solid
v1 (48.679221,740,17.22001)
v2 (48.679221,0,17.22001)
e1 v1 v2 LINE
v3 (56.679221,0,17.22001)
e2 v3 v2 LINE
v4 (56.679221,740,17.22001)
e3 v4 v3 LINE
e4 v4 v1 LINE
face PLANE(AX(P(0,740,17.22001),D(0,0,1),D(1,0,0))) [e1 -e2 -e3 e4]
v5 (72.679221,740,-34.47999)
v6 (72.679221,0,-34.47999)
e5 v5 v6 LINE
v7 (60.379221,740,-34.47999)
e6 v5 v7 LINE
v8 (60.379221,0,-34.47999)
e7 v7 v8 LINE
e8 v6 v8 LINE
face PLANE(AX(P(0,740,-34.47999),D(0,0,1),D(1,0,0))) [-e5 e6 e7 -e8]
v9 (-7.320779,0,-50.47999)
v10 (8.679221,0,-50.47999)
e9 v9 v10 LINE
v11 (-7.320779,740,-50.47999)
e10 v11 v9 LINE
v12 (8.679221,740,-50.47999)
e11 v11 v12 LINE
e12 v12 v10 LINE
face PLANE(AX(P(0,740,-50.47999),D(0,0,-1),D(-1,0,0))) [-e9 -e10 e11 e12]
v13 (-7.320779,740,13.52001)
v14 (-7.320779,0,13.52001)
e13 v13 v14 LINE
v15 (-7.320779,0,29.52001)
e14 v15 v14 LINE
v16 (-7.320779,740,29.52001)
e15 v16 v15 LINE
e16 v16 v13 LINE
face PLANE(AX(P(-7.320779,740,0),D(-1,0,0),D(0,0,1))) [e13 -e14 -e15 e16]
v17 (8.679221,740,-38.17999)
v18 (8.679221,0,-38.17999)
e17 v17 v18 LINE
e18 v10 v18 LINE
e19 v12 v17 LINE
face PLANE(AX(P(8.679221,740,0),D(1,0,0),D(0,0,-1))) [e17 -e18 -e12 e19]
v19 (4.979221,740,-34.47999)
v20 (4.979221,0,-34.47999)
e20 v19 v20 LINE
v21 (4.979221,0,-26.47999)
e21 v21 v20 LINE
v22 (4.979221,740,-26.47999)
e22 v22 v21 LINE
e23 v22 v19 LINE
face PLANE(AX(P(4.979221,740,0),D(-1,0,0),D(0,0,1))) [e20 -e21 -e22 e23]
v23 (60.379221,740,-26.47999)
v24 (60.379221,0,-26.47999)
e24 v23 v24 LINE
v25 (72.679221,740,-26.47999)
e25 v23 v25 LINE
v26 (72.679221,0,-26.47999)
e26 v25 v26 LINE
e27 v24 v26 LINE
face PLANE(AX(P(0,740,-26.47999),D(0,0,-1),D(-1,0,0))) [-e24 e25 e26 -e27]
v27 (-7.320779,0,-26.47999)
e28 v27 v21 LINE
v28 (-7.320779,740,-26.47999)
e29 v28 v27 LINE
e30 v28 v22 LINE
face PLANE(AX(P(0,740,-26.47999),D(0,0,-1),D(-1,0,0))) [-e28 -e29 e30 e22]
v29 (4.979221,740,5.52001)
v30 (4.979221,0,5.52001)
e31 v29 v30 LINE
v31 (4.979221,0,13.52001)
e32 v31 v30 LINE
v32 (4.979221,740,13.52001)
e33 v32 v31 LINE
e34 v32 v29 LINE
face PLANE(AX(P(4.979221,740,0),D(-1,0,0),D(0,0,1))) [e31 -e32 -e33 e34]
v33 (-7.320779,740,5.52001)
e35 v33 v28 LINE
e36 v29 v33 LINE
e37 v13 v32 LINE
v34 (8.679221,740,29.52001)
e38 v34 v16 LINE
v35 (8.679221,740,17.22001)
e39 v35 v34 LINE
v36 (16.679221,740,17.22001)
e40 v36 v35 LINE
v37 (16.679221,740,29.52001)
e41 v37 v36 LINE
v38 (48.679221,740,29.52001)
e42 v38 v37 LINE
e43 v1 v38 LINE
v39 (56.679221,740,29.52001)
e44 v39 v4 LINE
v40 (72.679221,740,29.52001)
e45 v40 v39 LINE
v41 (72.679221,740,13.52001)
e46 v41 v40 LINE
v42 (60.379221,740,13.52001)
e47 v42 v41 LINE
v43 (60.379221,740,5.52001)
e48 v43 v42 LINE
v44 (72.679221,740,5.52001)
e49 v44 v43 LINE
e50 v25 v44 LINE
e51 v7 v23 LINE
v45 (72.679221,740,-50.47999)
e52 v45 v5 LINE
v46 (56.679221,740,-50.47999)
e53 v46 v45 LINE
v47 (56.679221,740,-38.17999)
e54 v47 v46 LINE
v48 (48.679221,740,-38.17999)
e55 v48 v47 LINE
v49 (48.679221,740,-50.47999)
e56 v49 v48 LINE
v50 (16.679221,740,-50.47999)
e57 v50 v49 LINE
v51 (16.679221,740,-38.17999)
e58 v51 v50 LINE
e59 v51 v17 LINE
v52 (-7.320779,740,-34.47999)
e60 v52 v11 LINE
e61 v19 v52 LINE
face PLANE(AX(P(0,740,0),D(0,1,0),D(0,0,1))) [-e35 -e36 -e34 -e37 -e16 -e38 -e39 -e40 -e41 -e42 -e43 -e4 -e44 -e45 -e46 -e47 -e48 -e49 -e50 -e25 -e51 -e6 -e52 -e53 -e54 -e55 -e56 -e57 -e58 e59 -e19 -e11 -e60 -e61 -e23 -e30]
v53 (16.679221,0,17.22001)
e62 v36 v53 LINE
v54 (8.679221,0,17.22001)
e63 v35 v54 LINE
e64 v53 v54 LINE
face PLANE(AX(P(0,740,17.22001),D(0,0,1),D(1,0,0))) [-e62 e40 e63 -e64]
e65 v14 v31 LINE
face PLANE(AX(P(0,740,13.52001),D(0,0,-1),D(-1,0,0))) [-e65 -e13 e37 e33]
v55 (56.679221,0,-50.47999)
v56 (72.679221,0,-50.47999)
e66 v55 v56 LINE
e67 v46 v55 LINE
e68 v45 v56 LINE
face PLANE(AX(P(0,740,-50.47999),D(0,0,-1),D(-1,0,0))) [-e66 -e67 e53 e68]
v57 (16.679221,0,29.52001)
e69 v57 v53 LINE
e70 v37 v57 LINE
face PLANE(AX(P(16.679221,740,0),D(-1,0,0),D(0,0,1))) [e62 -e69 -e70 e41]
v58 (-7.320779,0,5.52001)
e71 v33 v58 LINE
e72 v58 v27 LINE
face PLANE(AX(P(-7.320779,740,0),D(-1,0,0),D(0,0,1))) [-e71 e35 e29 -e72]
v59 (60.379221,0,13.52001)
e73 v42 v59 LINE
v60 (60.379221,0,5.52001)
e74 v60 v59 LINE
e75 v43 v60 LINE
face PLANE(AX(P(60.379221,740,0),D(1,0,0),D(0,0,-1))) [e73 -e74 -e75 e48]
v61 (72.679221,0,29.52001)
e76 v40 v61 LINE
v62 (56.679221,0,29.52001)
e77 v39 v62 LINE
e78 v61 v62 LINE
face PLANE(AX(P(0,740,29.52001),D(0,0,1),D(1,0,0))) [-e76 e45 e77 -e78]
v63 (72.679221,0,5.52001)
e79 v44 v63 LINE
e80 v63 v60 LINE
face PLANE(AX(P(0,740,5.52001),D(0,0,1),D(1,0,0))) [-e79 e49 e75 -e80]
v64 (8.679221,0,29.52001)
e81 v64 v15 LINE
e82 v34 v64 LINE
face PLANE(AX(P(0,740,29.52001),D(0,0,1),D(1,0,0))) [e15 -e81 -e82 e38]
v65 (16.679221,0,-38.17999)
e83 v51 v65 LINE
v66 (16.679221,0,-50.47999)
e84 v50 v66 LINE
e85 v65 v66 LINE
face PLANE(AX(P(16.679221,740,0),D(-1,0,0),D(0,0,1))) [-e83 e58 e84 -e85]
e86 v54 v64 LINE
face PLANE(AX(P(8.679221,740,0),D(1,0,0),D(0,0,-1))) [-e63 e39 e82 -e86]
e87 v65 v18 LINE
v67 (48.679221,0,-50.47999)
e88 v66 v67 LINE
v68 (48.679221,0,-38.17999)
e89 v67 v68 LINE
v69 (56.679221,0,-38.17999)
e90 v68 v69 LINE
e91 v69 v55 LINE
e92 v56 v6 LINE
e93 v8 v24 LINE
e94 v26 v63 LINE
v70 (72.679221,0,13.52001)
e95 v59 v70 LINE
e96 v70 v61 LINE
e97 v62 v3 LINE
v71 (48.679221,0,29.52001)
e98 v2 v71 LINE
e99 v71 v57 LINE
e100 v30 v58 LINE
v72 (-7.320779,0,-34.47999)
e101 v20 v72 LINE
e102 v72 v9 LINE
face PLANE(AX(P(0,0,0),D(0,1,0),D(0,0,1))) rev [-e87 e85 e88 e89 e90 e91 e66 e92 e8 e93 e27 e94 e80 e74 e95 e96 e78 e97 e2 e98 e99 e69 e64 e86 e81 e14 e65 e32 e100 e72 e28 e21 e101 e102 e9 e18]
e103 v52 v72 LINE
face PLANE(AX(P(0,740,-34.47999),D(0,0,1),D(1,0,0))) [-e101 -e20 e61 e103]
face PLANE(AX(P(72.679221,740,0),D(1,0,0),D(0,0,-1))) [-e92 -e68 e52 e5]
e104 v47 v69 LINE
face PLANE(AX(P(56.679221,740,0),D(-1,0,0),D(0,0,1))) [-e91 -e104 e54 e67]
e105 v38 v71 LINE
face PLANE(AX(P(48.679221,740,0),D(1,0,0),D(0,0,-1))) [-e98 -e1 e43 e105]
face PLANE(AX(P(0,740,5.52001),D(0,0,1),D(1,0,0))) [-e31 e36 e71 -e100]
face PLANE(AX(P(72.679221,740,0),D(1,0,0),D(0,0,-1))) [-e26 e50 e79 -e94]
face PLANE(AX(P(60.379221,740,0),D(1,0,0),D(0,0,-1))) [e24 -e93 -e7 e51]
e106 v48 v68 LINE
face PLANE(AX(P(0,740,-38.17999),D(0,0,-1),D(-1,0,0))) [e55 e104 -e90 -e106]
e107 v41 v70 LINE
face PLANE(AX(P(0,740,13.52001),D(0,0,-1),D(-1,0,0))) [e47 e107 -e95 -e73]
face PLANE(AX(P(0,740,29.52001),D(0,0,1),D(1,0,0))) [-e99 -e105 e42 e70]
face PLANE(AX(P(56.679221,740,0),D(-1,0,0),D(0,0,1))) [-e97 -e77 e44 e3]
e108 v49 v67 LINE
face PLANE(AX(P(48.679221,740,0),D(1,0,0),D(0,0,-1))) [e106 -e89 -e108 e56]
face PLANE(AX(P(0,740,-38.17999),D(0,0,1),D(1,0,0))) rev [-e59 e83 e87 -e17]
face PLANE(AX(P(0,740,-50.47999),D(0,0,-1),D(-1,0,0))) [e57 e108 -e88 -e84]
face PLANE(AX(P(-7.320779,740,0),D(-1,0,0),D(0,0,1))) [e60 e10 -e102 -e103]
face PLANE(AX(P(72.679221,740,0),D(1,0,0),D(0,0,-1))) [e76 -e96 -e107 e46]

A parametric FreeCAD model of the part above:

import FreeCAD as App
import Part
import Sketcher


def add_polygon(sketch, points):
    """Adds a closed chain of lines whose ends are joined by coincident constraints."""
    first, n = sketch.GeometryCount, len(points)
    for a, b in zip(points, points[1:] + points[:1]):
        sketch.addGeometry(Part.LineSegment(App.Vector(*a, 0), App.Vector(*b, 0)), False)
    for i in range(n):
        sketch.addConstraint(Sketcher.Constraint("Coincident", first + i, 2, first + (i + 1) % n, 1))

doc = App.newDocument("Part")
body = doc.addObject("PartDesign::Body", "Body")

sketch1 = doc.addObject("Sketcher::SketchObject", "Sketch")
body.addObject(sketch1)
sketch1.AttachmentSupport = (doc.XZ_Plane, [""])
sketch1.MapMode = "FlatFace"
add_polygon(sketch1, [(-7, -50), (-7, -34), (5, -34), (5, -26), (-7, -26), (-7, 6), (5, 6), (5, 14), (-7, 14), (-7, 30), (9, 30), (9, 17), (17, 17), (17, 30), (49, 30), (49, 17), (57, 17), (57, 30), (73, 30), (73, 14), (60, 14), (60, 6), (73, 6), (73, -26), (60, -26), (60, -34), (73, -34), (73, -50), (57, -50), (57, -38), (49, -38), (49, -50), (17, -50), (17, -38), (9, -38), (9, -50)])
sketch1.addConstraint(Sketcher.Constraint("Vertical", 0))
sketch1.addConstraint(Sketcher.Constraint("Horizontal", 1))
sketch1.addConstraint(Sketcher.Constraint("Vertical", 2))
sketch1.addConstraint(Sketcher.Constraint("Horizontal", 3))
sketch1.addConstraint(Sketcher.Constraint("Vertical", 4))
sketch1.addConstraint(Sketcher.Constraint("Horizontal", 5))
sketch1.addConstraint(Sketcher.Constraint("Vertical", 6))
sketch1.addConstraint(Sketcher.Constraint("Horizontal", 7))
sketch1.addConstraint(Sketcher.Constraint("Vertical", 8))
sketch1.addConstraint(Sketcher.Constraint("Horizontal", 9))
sketch1.addConstraint(Sketcher.Constraint("Vertical", 10))
sketch1.addConstraint(Sketcher.Constraint("Horizontal", 11))
sketch1.addConstraint(Sketcher.Constraint("Vertical", 12))
sketch1.addConstraint(Sketcher.Constraint("Horizontal", 13))
sketch1.addConstraint(Sketcher.Constraint("Vertical", 14))
sketch1.addConstraint(Sketcher.Constraint("Horizontal", 15))
sketch1.addConstraint(Sketcher.Constraint("Vertical", 16))
sketch1.addConstraint(Sketcher.Constraint("Horizontal", 17))
sketch1.addConstraint(Sketcher.Constraint("Vertical", 18))
sketch1.addConstraint(Sketcher.Constraint("Horizontal", 19))
sketch1.addConstraint(Sketcher.Constraint("Vertical", 20))
sketch1.addConstraint(Sketcher.Constraint("Horizontal", 21))
sketch1.addConstraint(Sketcher.Constraint("Vertical", 22))
sketch1.addConstraint(Sketcher.Constraint("Horizontal", 23))
sketch1.addConstraint(Sketcher.Constraint("Vertical", 24))
sketch1.addConstraint(Sketcher.Constraint("Horizontal", 25))
sketch1.addConstraint(Sketcher.Constraint("Vertical", 26))
sketch1.addConstraint(Sketcher.Constraint("Horizontal", 27))
sketch1.addConstraint(Sketcher.Constraint("Vertical", 28))
sketch1.addConstraint(Sketcher.Constraint("Horizontal", 29))
sketch1.addConstraint(Sketcher.Constraint("Vertical", 30))
sketch1.addConstraint(Sketcher.Constraint("Horizontal", 31))
sketch1.addConstraint(Sketcher.Constraint("Vertical", 32))
sketch1.addConstraint(Sketcher.Constraint("Horizontal", 33))
sketch1.addConstraint(Sketcher.Constraint("Vertical", 34))
sketch1.addConstraint(Sketcher.Constraint("Horizontal", 35))
sketch1.addConstraint(Sketcher.Constraint("Horizontal", 9, 2, 12, 2))
sketch1.addConstraint(Sketcher.Constraint("Horizontal", 11, 2, 14, 2))
sketch1.addConstraint(Sketcher.Constraint("Horizontal", 13, 2, 16, 2))
sketch1.addConstraint(Sketcher.Constraint("Horizontal", 7, 2, 18, 2))
sketch1.addConstraint(Sketcher.Constraint("Horizontal", 5, 2, 20, 2))
sketch1.addConstraint(Sketcher.Constraint("Horizontal", 3, 2, 22, 2))
sketch1.addConstraint(Sketcher.Constraint("Horizontal", 1, 2, 24, 2))
sketch1.addConstraint(Sketcher.Constraint("Horizontal", 27, 2, 30, 2))
sketch1.addConstraint(Sketcher.Constraint("Horizontal", 29, 2, 32, 2))
sketch1.addConstraint(Sketcher.Constraint("Horizontal", 31, 2, 34, 2))
sketch1.addConstraint(Sketcher.Constraint("Vertical", 0, 2, 3, 2))
sketch1.addConstraint(Sketcher.Constraint("Vertical", 2, 2, 5, 2))
sketch1.addConstraint(Sketcher.Constraint("Vertical", 4, 2, 7, 2))
sketch1.addConstraint(Sketcher.Constraint("Vertical", 18, 2, 21, 2))
sketch1.addConstraint(Sketcher.Constraint("Vertical", 20, 2, 23, 2))
sketch1.addConstraint(Sketcher.Constraint("Vertical", 22, 2, 25, 2))
sketch1.addConstraint(Sketcher.Constraint("Vertical", 16, 2, 27, 2))
sketch1.addConstraint(Sketcher.Constraint("Vertical", 14, 2, 29, 2))
sketch1.addConstraint(Sketcher.Constraint("Vertical", 12, 2, 31, 2))
sketch1.addConstraint(Sketcher.Constraint("Vertical", 10, 2, 33, 2))
sketch1.addConstraint(Sketcher.Constraint("Equal", 11, 15))
sketch1.addConstraint(Sketcher.Constraint("Equal", 9, 17))
sketch1.addConstraint(Sketcher.Constraint("Equal", 7, 19))
sketch1.addConstraint(Sketcher.Constraint("Equal", 35, 0))
sketch1.addConstraint(Sketcher.Constraint("Equal", 33, 2))
sketch1.addConstraint(Sketcher.Constraint("Equal", 31, 4))
sketch1.addConstraint(Sketcher.Constraint("Equal", 2, 6))
sketch1.addConstraint(Sketcher.Constraint("Equal", 0, 8))
sketch1.addConstraint(Sketcher.Constraint("Equal", 25, 10))
sketch1.addConstraint(Sketcher.Constraint("Equal", 16, 28))
sketch1.addConstraint(Sketcher.Constraint("DistanceX", 9, 1, 9, 2, 16.0))
sketch1.addConstraint(Sketcher.Constraint("DistanceX", 11, 1, 11, 2, 8.0))
sketch1.addConstraint(Sketcher.Constraint("DistanceX", 13, 1, 13, 2, 32.0))
sketch1.addConstraint(Sketcher.Constraint("DistanceX", 1, 1, 1, 2, 12.3))
sketch1.addConstraint(Sketcher.Constraint("DistanceX", 0, 2, -1, 1, 7.320779))
sketch1.addConstraint(Sketcher.Constraint("DistanceY", 0, 2, -1, 1, 34.47999))
pad1 = doc.addObject("PartDesign::Pad", "Pad")
body.addObject(pad1)
pad1.Profile = sketch1
pad1.Length = 740
pad1.Reversed = True

doc.recompute()
